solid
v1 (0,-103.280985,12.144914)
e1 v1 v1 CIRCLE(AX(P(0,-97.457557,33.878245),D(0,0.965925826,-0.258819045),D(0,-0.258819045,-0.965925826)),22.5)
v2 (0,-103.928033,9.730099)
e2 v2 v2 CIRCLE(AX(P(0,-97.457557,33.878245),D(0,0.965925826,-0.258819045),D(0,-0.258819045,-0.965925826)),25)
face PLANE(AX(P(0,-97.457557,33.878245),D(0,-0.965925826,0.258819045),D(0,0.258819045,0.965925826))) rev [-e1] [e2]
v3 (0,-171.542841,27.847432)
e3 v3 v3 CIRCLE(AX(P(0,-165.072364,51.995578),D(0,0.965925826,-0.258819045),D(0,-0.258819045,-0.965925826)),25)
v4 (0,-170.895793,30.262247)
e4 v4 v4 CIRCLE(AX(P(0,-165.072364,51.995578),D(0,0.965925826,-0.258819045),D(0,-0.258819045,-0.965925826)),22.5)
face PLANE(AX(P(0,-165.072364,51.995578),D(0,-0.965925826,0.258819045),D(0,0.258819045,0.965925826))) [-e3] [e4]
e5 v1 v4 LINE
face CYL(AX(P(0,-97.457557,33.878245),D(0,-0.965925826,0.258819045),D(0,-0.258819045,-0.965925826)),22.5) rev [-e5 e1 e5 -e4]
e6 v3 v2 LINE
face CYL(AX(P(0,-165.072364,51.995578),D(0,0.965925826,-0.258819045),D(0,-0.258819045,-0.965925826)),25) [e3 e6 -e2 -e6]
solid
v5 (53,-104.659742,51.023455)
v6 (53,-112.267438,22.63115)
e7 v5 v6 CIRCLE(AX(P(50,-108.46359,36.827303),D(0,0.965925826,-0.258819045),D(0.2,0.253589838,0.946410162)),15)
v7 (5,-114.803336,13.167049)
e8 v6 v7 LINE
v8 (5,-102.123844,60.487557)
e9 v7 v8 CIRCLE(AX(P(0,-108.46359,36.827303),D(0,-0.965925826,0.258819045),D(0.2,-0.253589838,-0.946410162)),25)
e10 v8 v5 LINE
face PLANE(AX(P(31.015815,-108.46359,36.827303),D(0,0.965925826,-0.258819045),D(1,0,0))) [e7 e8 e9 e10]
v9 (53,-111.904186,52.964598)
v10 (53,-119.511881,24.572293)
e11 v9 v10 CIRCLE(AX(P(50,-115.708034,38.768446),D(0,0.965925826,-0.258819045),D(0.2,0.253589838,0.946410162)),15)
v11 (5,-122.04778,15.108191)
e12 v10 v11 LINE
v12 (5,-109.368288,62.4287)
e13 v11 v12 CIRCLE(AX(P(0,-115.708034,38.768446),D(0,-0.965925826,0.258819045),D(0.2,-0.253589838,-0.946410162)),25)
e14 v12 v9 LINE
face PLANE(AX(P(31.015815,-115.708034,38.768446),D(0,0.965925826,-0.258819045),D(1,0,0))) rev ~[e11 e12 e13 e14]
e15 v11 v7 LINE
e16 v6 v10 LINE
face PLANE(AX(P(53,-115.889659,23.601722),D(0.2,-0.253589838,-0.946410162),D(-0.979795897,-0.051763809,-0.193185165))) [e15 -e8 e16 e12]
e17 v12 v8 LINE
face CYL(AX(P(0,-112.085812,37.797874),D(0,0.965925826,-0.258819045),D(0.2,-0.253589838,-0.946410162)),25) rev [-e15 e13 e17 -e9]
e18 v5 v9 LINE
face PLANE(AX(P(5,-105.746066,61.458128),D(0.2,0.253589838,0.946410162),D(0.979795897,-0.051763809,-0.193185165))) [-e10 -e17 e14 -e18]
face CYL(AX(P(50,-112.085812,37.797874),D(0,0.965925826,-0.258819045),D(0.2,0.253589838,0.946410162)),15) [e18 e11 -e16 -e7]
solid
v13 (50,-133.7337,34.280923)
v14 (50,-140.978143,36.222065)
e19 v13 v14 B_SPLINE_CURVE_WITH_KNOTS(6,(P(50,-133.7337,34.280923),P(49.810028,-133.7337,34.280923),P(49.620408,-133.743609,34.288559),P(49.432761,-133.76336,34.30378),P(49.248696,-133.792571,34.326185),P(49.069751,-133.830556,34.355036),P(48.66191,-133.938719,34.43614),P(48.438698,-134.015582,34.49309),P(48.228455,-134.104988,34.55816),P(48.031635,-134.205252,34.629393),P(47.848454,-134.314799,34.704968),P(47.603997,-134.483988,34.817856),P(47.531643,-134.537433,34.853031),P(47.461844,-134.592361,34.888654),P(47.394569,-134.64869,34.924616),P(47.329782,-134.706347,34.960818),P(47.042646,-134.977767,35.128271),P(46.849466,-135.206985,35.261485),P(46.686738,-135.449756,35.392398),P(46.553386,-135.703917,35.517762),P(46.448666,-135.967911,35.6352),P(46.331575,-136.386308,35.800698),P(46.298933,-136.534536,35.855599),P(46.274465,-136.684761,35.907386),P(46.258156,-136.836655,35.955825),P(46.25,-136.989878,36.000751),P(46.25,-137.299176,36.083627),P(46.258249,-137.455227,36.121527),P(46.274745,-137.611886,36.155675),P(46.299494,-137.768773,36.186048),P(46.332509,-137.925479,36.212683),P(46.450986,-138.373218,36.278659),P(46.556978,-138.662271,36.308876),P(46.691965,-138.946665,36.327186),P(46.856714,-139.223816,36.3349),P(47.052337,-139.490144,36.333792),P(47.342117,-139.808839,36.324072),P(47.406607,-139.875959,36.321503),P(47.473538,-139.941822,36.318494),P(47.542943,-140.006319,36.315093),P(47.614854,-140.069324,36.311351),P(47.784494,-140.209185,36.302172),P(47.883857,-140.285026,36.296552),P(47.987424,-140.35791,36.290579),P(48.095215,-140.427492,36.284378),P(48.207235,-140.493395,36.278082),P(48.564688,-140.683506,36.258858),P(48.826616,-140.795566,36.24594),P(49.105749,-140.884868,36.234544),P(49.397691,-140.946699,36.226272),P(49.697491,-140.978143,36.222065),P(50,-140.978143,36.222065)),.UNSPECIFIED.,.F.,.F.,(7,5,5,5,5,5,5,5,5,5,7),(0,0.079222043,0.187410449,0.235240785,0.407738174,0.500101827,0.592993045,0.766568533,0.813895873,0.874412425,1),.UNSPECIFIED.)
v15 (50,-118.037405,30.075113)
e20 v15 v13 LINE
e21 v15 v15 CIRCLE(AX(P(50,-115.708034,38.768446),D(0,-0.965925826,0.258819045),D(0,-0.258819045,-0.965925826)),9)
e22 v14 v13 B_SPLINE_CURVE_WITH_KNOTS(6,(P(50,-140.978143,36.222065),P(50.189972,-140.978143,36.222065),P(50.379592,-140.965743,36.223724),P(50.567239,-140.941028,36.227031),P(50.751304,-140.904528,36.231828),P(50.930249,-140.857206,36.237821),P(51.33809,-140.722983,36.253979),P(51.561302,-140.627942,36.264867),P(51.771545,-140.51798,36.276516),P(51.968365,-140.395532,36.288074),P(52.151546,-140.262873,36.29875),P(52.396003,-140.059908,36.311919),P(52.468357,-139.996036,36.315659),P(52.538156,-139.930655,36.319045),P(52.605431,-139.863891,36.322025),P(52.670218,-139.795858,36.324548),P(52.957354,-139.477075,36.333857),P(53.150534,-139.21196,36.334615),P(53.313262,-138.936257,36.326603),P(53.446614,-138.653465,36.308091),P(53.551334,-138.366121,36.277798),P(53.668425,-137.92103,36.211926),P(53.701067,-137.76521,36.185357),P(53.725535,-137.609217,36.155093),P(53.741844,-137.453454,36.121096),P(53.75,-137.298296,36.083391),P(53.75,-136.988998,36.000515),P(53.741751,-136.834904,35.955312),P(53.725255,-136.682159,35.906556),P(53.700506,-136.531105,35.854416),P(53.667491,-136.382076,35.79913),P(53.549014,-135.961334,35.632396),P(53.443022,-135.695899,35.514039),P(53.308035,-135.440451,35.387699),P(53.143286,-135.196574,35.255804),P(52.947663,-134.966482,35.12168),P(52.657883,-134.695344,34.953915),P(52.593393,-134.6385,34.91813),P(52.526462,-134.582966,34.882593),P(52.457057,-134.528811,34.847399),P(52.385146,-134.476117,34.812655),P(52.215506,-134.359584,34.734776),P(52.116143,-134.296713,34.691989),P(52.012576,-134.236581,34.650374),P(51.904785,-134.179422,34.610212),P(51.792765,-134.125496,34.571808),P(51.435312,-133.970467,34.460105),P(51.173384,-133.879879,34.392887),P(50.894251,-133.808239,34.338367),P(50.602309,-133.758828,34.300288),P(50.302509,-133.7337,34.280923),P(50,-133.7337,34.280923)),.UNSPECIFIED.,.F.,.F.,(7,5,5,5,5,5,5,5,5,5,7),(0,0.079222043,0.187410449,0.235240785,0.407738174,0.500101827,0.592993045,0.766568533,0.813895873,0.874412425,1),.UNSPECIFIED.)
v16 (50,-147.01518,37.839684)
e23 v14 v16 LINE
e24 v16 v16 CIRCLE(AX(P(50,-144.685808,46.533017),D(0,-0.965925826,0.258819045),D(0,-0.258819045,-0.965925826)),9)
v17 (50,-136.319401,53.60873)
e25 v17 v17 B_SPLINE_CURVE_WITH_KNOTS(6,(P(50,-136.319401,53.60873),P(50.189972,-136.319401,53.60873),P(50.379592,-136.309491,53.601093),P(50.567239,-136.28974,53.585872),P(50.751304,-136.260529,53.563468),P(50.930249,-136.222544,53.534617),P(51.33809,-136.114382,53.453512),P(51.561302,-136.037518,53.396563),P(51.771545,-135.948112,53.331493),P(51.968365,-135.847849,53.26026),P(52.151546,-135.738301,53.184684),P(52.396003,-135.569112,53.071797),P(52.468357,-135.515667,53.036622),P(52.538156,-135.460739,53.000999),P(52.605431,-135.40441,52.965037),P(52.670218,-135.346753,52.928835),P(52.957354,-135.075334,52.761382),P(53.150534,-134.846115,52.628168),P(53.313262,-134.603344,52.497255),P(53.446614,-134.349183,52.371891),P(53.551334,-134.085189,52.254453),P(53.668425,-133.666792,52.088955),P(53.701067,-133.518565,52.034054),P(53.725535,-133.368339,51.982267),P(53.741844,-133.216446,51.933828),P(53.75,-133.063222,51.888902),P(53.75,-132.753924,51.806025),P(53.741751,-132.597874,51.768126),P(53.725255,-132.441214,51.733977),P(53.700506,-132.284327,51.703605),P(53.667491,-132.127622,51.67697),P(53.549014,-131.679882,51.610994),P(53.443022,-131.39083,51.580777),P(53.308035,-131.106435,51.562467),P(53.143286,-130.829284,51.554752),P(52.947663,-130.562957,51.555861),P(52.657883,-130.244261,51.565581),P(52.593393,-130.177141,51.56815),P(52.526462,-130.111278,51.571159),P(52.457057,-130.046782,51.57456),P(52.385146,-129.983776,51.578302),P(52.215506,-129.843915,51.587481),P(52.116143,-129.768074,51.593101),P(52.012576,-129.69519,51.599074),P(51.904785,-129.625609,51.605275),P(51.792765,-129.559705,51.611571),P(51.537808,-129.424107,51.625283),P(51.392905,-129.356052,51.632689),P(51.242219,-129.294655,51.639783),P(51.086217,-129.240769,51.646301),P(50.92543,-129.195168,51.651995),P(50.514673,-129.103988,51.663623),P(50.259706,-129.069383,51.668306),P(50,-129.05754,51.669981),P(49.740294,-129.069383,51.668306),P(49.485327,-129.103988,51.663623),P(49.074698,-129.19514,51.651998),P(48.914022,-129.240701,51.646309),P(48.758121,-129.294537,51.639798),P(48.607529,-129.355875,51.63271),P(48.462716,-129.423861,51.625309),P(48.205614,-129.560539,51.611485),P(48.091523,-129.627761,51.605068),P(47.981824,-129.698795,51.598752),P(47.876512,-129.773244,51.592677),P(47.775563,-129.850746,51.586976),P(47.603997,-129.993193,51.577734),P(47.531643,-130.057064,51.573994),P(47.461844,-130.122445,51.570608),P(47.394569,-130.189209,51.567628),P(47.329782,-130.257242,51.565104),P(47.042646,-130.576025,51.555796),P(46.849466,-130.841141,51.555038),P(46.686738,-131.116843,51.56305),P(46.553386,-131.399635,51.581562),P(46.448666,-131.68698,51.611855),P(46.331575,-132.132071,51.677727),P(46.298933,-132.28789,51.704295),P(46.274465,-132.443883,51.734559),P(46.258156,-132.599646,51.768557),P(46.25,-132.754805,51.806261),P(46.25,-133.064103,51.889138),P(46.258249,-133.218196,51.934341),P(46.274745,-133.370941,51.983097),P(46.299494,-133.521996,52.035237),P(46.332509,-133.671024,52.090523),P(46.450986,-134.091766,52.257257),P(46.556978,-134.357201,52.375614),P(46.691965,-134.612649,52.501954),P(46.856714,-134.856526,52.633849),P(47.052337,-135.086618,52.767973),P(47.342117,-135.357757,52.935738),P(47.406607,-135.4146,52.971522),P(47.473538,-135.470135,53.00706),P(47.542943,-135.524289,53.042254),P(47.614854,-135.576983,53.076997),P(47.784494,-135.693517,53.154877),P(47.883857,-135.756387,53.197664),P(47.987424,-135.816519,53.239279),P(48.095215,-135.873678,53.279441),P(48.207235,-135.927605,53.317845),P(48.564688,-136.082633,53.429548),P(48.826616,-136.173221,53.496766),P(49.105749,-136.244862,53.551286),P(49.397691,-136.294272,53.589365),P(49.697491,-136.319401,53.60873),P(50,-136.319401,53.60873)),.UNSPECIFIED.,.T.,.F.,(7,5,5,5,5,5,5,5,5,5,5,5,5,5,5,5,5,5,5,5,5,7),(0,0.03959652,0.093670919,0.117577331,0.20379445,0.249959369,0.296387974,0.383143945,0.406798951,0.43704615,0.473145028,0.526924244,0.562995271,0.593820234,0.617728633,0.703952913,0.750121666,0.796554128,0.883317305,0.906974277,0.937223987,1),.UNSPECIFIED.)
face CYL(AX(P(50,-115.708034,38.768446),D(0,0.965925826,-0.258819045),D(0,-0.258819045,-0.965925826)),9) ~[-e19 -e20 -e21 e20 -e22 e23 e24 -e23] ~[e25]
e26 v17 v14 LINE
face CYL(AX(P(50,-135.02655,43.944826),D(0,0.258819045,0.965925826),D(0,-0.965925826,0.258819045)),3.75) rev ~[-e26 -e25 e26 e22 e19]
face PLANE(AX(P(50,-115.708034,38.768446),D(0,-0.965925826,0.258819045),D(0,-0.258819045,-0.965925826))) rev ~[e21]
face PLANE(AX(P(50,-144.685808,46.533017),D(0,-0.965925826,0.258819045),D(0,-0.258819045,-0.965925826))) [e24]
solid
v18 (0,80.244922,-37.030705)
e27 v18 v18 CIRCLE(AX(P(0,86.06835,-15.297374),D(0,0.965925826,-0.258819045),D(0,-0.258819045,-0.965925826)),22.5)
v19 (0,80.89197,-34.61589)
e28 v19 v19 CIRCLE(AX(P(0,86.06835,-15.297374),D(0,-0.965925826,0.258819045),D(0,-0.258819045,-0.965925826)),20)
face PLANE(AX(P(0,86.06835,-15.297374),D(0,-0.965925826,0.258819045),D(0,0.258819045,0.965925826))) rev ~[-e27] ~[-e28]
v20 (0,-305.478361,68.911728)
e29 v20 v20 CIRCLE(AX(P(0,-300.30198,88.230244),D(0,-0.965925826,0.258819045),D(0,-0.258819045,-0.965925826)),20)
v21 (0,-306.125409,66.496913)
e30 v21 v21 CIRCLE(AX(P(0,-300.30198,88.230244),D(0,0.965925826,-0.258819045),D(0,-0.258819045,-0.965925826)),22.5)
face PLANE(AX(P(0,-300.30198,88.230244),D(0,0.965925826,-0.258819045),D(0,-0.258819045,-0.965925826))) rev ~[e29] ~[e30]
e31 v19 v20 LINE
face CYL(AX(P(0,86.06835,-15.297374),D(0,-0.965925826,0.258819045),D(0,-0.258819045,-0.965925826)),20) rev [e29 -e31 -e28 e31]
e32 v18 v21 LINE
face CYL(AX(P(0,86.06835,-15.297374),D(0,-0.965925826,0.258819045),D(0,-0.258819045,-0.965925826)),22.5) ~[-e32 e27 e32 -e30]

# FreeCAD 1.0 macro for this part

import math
import FreeCAD as App
import Part
import Sketcher
Q = App.Units.Quantity


def faces_at(feature, points):
    """Names of the faces that lie closest to the given points."""
    faces = feature.Shape.Faces
    near = lambda p: min(range(len(faces)), key=lambda i: faces[i].distToShape(Part.Vertex(*p))[0])
    return sorted({f"Face{near(p) + 1}" for p in points})

doc = App.newDocument("Part")
body = doc.addObject("PartDesign::Body", "Body")

# Sketch on YZ plane
sketch1 = body.newObject("Sketcher::SketchObject", "Sketch")
sketch1.AttachmentSupport = (doc.getObject("YZ_Plane"), [""])
sketch1.MapMode = "FlatFace"
sketch1.addGeometry([
    Part.LineSegment(App.Vector(-306, 66, 0), App.Vector(80, -37, 0)),
    Part.LineSegment(App.Vector(80, -37, 0), App.Vector(86, -15, 0)),
    Part.LineSegment(App.Vector(86, -15, 0), App.Vector(-300, 88, 0)),
    Part.LineSegment(App.Vector(-300, 88, 0), App.Vector(-306, 66, 0)),
], False)
sketch1.addGeometry(Part.LineSegment(App.Vector(-300, 88, 0), App.Vector(86, -15, 0)), True)  # axis
sketch1.addConstraint([
    Sketcher.Constraint("Coincident", 0, 2, 1, 1),
    Sketcher.Constraint("Coincident", 1, 2, 2, 1),
    Sketcher.Constraint("Coincident", 2, 2, 3, 1),
    Sketcher.Constraint("Coincident", 3, 2, 0, 1),
    Sketcher.Constraint("Coincident", 4, 1, 2, 2),
    Sketcher.Constraint("Coincident", 4, 2, 1, 2),
    Sketcher.Constraint("Perpendicular", 0, 1),
    Sketcher.Constraint("Perpendicular", 1, 2),
    Sketcher.Constraint("Perpendicular", 2, 3),
    Sketcher.Constraint("Angle", 0, Q("-15 deg")),
    Sketcher.Constraint("Distance", 0, Q("400 mm")),
    Sketcher.Constraint("Distance", 1, Q("22.5 mm")),
    Sketcher.Constraint("DistanceX", -1, 1, 0, 2, Q("80.244922 mm")),
    Sketcher.Constraint("DistanceY", 0, 2, -1, 1, Q("37.030705 mm")),
])
revolution = body.newObject("PartDesign::Revolution", "Revolution")
revolution.Profile = sketch1
revolution.ReferenceAxis = (sketch1, ["Axis0"])
revolution.Angle = 360
doc.recompute()

thickness = body.newObject("PartDesign::Thickness", "Thickness")
thickness.Base = (revolution, faces_at(revolution, [(0, -300.302, 88.23), (0, 86.068, -15.297)]))
thickness.Value = 2.5
thickness.Reversed = True
thickness.Join = "Intersection"
body2 = doc.addObject("PartDesign::Body", "Body001")

# Sketch on YZ plane
sketch2 = body2.newObject("Sketcher::SketchObject", "Sketch001")
sketch2.AttachmentSupport = (doc.getObject("YZ_Plane001"), [""])
sketch2.MapMode = "FlatFace"
sketch2.addGeometry([
    Part.LineSegment(App.Vector(-103.3, 12.1, 0), App.Vector(-170.9, 30.3, 0)),
    Part.LineSegment(App.Vector(-170.9, 30.3, 0), App.Vector(-171.5, 27.8, 0)),
    Part.LineSegment(App.Vector(-171.5, 27.8, 0), App.Vector(-103.9, 9.7, 0)),
    Part.LineSegment(App.Vector(-103.9, 9.7, 0), App.Vector(-103.3, 12.1, 0)),
], False)
sketch2.addGeometry(Part.LineSegment(App.Vector(-165.1, 52, 0), App.Vector(-97.5, 33.9, 0)), True)  # axis
sketch2.addConstraint([
    Sketcher.Constraint("Coincident", 0, 2, 1, 1),
    Sketcher.Constraint("Coincident", 1, 2, 2, 1),
    Sketcher.Constraint("Coincident", 2, 2, 3, 1),
    Sketcher.Constraint("Coincident", 3, 2, 0, 1),
    Sketcher.Constraint("Perpendicular", 0, 1),
    Sketcher.Constraint("Perpendicular", 1, 2),
    Sketcher.Constraint("Perpendicular", 2, 3),
    Sketcher.Constraint("Perpendicular", 3, 4),
    Sketcher.Constraint("Equal", 2, 4),
    Sketcher.Constraint("Angle", 0, Q("165 deg")),
    Sketcher.Constraint("Distance", 0, Q("70 mm")),
    Sketcher.Constraint("Distance", 1, Q("2.5 mm")),
    Sketcher.Constraint("DistanceY", -1, 1, 2, 2, Q("9.730099 mm")),
    Sketcher.Constraint("DistanceX", 1, 2, -1, 1, Q("171.542841 mm")),
    Sketcher.Constraint("DistanceY", -1, 1, 4, 1, Q("51.995578 mm")),
    Sketcher.Constraint("DistanceX", 0, 2, 4, 1, Q("5.823428 mm")),
])
revolution2 = body2.newObject("PartDesign::Revolution", "Revolution001")
revolution2.Profile = sketch2
revolution2.ReferenceAxis = (sketch2, ["Axis0"])
revolution2.Angle = 360
body3 = doc.addObject("PartDesign::Body", "Body002")

# Sketch on an angled plane
sketch3 = body3.newObject("Sketcher::SketchObject", "Sketch002")
sketch3.Placement = App.Placement(App.Vector(0, -114.026955, 30.55343), App.Rotation(App.Vector(1, 0, 0), App.Vector(0, -0.258819045, -0.965925826), App.Vector(0, 0.965925826, -0.258819045), "ZXY"))
sketch3.addGeometry([
    Part.LineSegment(App.Vector(53, 7, 0), App.Vector(5, 17, 0)),
    Part.ArcOfCircle(Part.Circle(App.Vector(0, -7, 0), App.Vector(0, 0, 1), 25), math.radians(-78), math.radians(78)),
    Part.LineSegment(App.Vector(5, -32, 0), App.Vector(53, -22, 0)),
    Part.ArcOfCircle(Part.Circle(App.Vector(50, -7, 0), App.Vector(0, 0, 1), 15), math.radians(-78), math.radians(78)),
], False)
sketch3.addConstraint([
    Sketcher.Constraint("Tangent", 0, 2, 1, 2),
    Sketcher.Constraint("Tangent", 1, 1, 2, 1),
    Sketcher.Constraint("Tangent", 2, 2, 3, 1),
    Sketcher.Constraint("Tangent", 3, 2, 0, 1),
    Sketcher.Constraint("PointOnObject", 1, 3, -2),
    Sketcher.Constraint("Horizontal", 1, 3, 3, 3),
    Sketcher.Constraint("Radius", 1, Q("25 mm")),
    Sketcher.Constraint("Radius", 3, Q("15 mm")),
    Sketcher.Constraint("DistanceX", -1, 1, 3, 3, Q("50 mm")),
    Sketcher.Constraint("DistanceY", 1, 3, -1, 1, Q("7.5 mm")),
])
pad1 = body3.newObject("PartDesign::Pad", "Pad")
pad1.Profile = sketch3
pad1.Length = 7.5
pad1.Midplane = True
body4 = doc.addObject("PartDesign::Body", "Body003")

# Sketch on an angled plane
sketch4 = body4.newObject("Sketcher::SketchObject", "Sketch003")
sketch4.Placement = App.Placement(App.Vector(0, -117.649176, 31.524002), App.Rotation(App.Vector(1, 0, 0), App.Vector(0, 0.258819045, 0.965925826), App.Vector(0, -0.965925826, 0.258819045), "ZXY"))
sketch4.addGeometry(Part.Circle(App.Vector(50, 7, 0), App.Vector(0, 0, 1), 9), False)
sketch4.addConstraint([
    Sketcher.Constraint("Diameter", 0, Q("18 mm")),
    Sketcher.Constraint("DistanceX", -1, 1, 0, 3, Q("50 mm")),
    Sketcher.Constraint("DistanceY", -1, 1, 0, 3, Q("7.5 mm")),
])
pad2 = body4.newObject("PartDesign::Pad", "Pad001")
pad2.Profile = sketch4
pad2.Length = 30

# Sketch on an angled plane
sketch5 = body4.newObject("Sketcher::SketchObject", "Sketch004")
sketch5.Placement = App.Placement(App.Vector(0, 1.941143, 7.244444), App.Rotation(App.Vector(1, 0, 0), App.Vector(0, 0.965925826, -0.258819045), App.Vector(0, 0.258819045, 0.965925826), "ZXY"))
sketch5.addGeometry(Part.Circle(App.Vector(50, -141.8, 0), App.Vector(0, 0, 1), 3.8), False)
sketch5.addConstraint([
    Sketcher.Constraint("Diameter", 0, Q("7.5 mm")),
    Sketcher.Constraint("DistanceX", -1, 1, 0, 3, Q("50 mm")),
    Sketcher.Constraint("DistanceY", 0, 3, -1, 1, Q("141.79939 mm")),
])
pocket1 = body4.newObject("PartDesign::Pocket", "Pocket")
pocket1.Profile = sketch5
pocket1.Type = "ThroughAll"
pocket1.Midplane = True

doc.recompute()
